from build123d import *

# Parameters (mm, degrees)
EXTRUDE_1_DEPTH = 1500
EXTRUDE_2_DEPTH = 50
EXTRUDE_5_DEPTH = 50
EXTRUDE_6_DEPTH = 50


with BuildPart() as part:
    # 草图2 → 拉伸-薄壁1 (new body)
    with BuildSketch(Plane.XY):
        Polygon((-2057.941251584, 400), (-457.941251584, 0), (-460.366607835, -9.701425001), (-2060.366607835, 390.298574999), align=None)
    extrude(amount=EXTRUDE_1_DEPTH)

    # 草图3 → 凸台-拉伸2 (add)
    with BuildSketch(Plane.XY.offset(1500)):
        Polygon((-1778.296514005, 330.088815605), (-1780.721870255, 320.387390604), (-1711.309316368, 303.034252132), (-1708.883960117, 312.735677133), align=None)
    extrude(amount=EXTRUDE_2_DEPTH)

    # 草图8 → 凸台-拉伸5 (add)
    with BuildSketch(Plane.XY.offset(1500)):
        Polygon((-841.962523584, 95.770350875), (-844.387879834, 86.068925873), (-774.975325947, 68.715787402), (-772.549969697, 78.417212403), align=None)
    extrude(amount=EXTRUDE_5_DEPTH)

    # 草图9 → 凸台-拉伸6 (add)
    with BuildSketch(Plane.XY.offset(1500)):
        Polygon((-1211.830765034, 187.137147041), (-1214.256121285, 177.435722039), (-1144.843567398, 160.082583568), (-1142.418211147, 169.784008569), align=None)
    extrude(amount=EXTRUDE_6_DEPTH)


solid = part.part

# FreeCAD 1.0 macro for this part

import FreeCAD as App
import Part
import Sketcher


def add_polygon(sketch, points):
    """Adds a closed chain of lines whose ends are joined by coincident constraints."""
    first, n = sketch.GeometryCount, len(points)
    for a, b in zip(points, points[1:] + points[:1]):
        sketch.addGeometry(Part.LineSegment(App.Vector(*a, 0), App.Vector(*b, 0)), False)
    for i in range(n):
        sketch.addConstraint(Sketcher.Constraint("Coincident", first + i, 2, first + (i + 1) % n, 1))

doc = App.newDocument("Part")
body = doc.addObject("PartDesign::Body", "Body")

sketch1 = body.newObject("Sketcher::SketchObject", "Sketch")
sketch1.AttachmentSupport = (doc.getObject("XY_Plane"), [""])
sketch1.MapMode = "FlatFace"
add_polygon(sketch1, [(-458, 0), (-2058, 400), (-2060, 390), (-460, -10)])
sketch1.addConstraint(Sketcher.Constraint("PointOnObject", 3, 2, -1))
sketch1.addConstraint(Sketcher.Constraint("Perpendicular", 0, 1))
sketch1.addConstraint(Sketcher.Constraint("Perpendicular", 1, 2))
sketch1.addConstraint(Sketcher.Constraint("Perpendicular", 2, 3))
sketch1.addConstraint(Sketcher.Constraint("Distance", 1, 10.0))
sketch1.addConstraint(Sketcher.Constraint("DistanceY", -1, 1, 0, 2, 400.0))
sketch1.addConstraint(Sketcher.Constraint("DistanceX", 1, 2, 2, 2, 1600.0))
sketch1.addConstraint(Sketcher.Constraint("DistanceX", 0, 2, -1, 1, 2057.941252))
pad1 = body.newObject("PartDesign::Pad", "Pad")
pad1.Profile = sketch1
pad1.Length = 1500

sketch2 = body.newObject("Sketcher::SketchObject", "Sketch001")
sketch2.AttachmentSupport = (doc.getObject("XY_Plane"), [""])
sketch2.MapMode = "FlatFace"
sketch2.AttachmentOffset = App.Placement(App.Vector(0, 0, 1500), App.Rotation())
add_polygon(sketch2, [(-1778, 330), (-1781, 320), (-1711, 303), (-1709, 313)])
sketch2.addConstraint(Sketcher.Constraint("Perpendicular", 0, 1))
sketch2.addConstraint(Sketcher.Constraint("Perpendicular", 1, 2))
sketch2.addConstraint(Sketcher.Constraint("Perpendicular", 2, 3))
sketch2.addConstraint(Sketcher.Constraint("Distance", 0, 10.0))
sketch2.addConstraint(Sketcher.Constraint("DistanceX", 0, 2, -1, 1, 1780.72187))
sketch2.addConstraint(Sketcher.Constraint("DistanceY", -1, 1, 0, 2, 320.387391))
sketch2.addConstraint(Sketcher.Constraint("DistanceX", 2, 2, -1, 1, 1708.88396))
sketch2.addConstraint(Sketcher.Constraint("DistanceY", 1, 2, 0, 2, 17.353138))
pad2 = body.newObject("PartDesign::Pad", "Pad001")
pad2.Profile = sketch2
pad2.Length = 50

sketch3 = body.newObject("Sketcher::SketchObject", "Sketch002")
sketch3.AttachmentSupport = (doc.getObject("XY_Plane"), [""])
sketch3.MapMode = "FlatFace"
sketch3.AttachmentOffset = App.Placement(App.Vector(0, 0, 1500), App.Rotation())
add_polygon(sketch3, [(-842, 96), (-844, 86), (-775, 69), (-773, 78)])
sketch3.addConstraint(Sketcher.Constraint("Perpendicular", 0, 1))
sketch3.addConstraint(Sketcher.Constraint("Perpendicular", 1, 2))
sketch3.addConstraint(Sketcher.Constraint("Perpendicular", 2, 3))
sketch3.addConstraint(Sketcher.Constraint("Distance", 0, 10.0))
sketch3.addConstraint(Sketcher.Constraint("DistanceX", 0, 2, -1, 1, 844.38788))
sketch3.addConstraint(Sketcher.Constraint("DistanceX", 2, 2, -1, 1, 772.54997))
sketch3.addConstraint(Sketcher.Constraint("DistanceY", -1, 1, 3, 2, 95.770351))
sketch3.addConstraint(Sketcher.Constraint("DistanceY", 1, 2, 0, 2, 17.353138))
pad3 = body.newObject("PartDesign::Pad", "Pad002")
pad3.Profile = sketch3
pad3.Length = 50

sketch4 = body.newObject("Sketcher::SketchObject", "Sketch003")
sketch4.AttachmentSupport = (doc.getObject("XY_Plane"), [""])
sketch4.MapMode = "FlatFace"
sketch4.AttachmentOffset = App.Placement(App.Vector(0, 0, 1500), App.Rotation())
add_polygon(sketch4, [(-1212, 187), (-1214, 177), (-1145, 160), (-1142, 170)])
sketch4.addConstraint(Sketcher.Constraint("Perpendicular", 0, 1))
sketch4.addConstraint(Sketcher.Constraint("Perpendicular", 1, 2))
sketch4.addConstraint(Sketcher.Constraint("Perpendicular", 2, 3))
sketch4.addConstraint(Sketcher.Constraint("Distance", 0, 10.0))
sketch4.addConstraint(Sketcher.Constraint("DistanceX", 0, 2, -1, 1, 1214.256121))
sketch4.addConstraint(Sketcher.Constraint("DistanceX", 2, 2, -1, 1, 1142.418211))
sketch4.addConstraint(Sketcher.Constraint("DistanceY", -1, 1, 2, 2, 169.784009))
sketch4.addConstraint(Sketcher.Constraint("DistanceY", 1, 2, 0, 2, 17.353138))
pad4 = body.newObject("PartDesign::Pad", "Pad003")
pad4.Profile = sketch4
pad4.Length = 50

doc.recompute()
